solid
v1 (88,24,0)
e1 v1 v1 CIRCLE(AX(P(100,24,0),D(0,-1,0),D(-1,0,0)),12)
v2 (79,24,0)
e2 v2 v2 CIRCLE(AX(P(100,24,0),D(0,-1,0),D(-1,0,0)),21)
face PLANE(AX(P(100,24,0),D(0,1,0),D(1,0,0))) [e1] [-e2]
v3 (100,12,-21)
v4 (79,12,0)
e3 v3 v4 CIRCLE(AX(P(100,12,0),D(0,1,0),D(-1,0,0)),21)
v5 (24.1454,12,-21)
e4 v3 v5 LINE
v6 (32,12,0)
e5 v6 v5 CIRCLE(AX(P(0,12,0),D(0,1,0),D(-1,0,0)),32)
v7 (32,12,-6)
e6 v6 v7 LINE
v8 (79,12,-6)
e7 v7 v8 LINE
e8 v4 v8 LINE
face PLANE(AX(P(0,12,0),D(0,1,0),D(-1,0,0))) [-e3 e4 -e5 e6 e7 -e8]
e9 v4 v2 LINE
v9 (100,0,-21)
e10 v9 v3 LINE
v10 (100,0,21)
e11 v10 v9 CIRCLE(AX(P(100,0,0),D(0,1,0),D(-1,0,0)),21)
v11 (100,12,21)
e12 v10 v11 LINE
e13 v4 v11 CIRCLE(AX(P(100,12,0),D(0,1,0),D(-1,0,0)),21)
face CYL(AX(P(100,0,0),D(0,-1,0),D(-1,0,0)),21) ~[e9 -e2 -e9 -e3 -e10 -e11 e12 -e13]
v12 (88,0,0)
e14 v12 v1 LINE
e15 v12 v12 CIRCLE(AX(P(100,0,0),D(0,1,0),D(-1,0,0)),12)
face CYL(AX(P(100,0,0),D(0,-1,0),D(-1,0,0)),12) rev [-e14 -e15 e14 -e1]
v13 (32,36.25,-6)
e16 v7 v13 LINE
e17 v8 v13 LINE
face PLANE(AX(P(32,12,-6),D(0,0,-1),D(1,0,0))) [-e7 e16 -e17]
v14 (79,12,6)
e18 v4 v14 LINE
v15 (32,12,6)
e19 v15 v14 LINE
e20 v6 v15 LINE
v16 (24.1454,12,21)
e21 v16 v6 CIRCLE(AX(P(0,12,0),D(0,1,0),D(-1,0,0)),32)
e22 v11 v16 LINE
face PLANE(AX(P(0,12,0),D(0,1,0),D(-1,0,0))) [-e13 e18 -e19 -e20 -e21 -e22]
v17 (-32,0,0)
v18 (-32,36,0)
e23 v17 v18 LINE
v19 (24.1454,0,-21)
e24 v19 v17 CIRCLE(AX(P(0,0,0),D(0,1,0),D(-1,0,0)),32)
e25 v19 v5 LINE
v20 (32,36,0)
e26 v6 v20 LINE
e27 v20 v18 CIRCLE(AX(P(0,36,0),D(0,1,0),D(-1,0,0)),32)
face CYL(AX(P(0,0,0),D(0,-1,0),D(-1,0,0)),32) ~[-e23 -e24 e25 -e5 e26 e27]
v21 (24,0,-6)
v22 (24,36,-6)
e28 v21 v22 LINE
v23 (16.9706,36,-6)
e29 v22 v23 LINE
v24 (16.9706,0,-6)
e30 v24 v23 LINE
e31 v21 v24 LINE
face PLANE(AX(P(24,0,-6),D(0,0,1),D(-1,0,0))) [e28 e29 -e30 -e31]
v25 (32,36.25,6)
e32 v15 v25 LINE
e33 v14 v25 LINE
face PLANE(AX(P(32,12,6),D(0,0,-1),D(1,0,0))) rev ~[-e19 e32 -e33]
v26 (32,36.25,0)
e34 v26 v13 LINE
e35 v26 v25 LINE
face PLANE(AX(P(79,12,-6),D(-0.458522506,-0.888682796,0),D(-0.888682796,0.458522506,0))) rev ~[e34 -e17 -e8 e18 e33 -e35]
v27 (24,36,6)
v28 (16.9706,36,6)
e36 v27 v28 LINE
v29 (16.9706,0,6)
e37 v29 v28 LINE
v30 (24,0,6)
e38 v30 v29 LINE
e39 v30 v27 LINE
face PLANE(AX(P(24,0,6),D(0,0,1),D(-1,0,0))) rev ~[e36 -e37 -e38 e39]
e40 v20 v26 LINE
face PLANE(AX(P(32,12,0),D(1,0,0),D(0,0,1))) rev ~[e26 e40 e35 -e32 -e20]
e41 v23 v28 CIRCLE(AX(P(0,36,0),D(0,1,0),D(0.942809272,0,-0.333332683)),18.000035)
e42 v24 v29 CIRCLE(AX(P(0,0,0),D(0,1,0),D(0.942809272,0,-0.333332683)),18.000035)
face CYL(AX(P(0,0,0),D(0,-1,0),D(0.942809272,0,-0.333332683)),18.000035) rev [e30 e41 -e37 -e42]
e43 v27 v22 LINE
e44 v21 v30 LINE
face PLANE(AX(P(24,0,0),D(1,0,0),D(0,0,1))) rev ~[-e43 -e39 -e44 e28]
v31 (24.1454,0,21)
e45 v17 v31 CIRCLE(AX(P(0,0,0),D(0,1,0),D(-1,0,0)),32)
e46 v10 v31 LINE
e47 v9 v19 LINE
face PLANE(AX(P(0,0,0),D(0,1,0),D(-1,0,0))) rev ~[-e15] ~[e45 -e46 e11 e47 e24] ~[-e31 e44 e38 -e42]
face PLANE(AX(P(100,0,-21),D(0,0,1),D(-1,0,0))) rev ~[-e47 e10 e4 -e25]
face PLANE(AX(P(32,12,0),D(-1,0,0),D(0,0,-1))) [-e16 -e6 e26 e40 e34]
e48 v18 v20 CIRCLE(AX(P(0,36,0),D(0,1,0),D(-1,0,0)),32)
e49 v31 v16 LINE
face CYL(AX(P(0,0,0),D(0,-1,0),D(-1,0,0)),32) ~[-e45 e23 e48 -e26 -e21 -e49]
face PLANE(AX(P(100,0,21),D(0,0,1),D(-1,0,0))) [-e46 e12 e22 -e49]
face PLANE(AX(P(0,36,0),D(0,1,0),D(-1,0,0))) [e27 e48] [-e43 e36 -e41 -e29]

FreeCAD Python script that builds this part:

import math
import FreeCAD as App
import Part
import Sketcher

V = App.Vector

doc = App.newDocument("Part")
body = doc.addObject("PartDesign::Body", "Body")
body.AllowCompound = True

# Sketch on XZ plane
sketch1 = doc.addObject("Sketcher::SketchObject", "Sketch")
body.addObject(sketch1)
sketch1.AttachmentSupport = (doc.XZ_Plane, [""])
sketch1.MapMode = "FlatFace"
sketch1.addGeometry(Part.Circle(V(0, 0, 0), V(0, 0, 1), 32), False)
sketch1.addGeometry(Part.ArcOfCircle(Part.Circle(V(0, 0, 0), V(0, 0, 1), 18), math.radians(19), math.radians(341)), False)
sketch1.addGeometry(Part.LineSegment(V(17, -6, 0), V(24, -6, 0)), False)
sketch1.addGeometry(Part.LineSegment(V(24, -6, 0), V(24, 6, 0)), False)
sketch1.addGeometry(Part.LineSegment(V(24, 6, 0), V(17, 6, 0)), False)
sketch1.addGeometry(Part.Circle(V(100, 0, 0), V(0, 0, 1), 21), False)
sketch1.addGeometry(Part.Circle(V(100, 0, 0), V(0, 0, 1), 12), False)
sketch1.addConstraint(Sketcher.Constraint("Coincident", 1, 2, 2, 1))
sketch1.addConstraint(Sketcher.Constraint("Coincident", 2, 2, 3, 1))
sketch1.addConstraint(Sketcher.Constraint("Coincident", 3, 2, 4, 1))
sketch1.addConstraint(Sketcher.Constraint("Coincident", 4, 2, 1, 1))
sketch1.addConstraint(Sketcher.Constraint("Horizontal", 2))
sketch1.addConstraint(Sketcher.Constraint("Vertical", 3))
sketch1.addConstraint(Sketcher.Constraint("Horizontal", 4))
sketch1.addConstraint(Sketcher.Constraint("Coincident", 0, 3, -1, 1))
sketch1.addConstraint(Sketcher.Constraint("Coincident", 1, 3, -1, 1))
sketch1.addConstraint(Sketcher.Constraint("Coincident", 6, 3, 5, 3))
sketch1.addConstraint(Sketcher.Constraint("PointOnObject", 5, 3, -1))
sketch1.addConstraint(Sketcher.Constraint("Vertical", 1, 2, 4, 2))
sketch1.addConstraint(Sketcher.Constraint("Diameter", 0, 64.0))
sketch1.addConstraint(Sketcher.Constraint("Diameter", 5, 42.0))
sketch1.addConstraint(Sketcher.Constraint("Diameter", 6, 24.0))
sketch1.addConstraint(Sketcher.Constraint("Radius", 1, 18.0))
sketch1.addConstraint(Sketcher.Constraint("DistanceY", 1, 2, -1, 1, 6.0))
sketch1.addConstraint(Sketcher.Constraint("DistanceX", -1, 1, 2, 2, 24.0))
sketch1.addConstraint(Sketcher.Constraint("DistanceX", -1, 1, 5, 3, 100.0))
pad1 = doc.addObject("PartDesign::Pad", "Pad")
body.addObject(pad1)
pad1.Profile = sketch1
pad1.Length = 36
pad1.Reversed = True

# Sketch on XZ plane
sketch2 = doc.addObject("Sketcher::SketchObject", "Sketch001")
body.addObject(sketch2)
sketch2.AttachmentSupport = (doc.XZ_Plane, [""])
sketch2.MapMode = "FlatFace"
sketch2.AttachmentOffset = App.Placement(V(0, 0, -36), App.Rotation())
sketch2.addGeometry(Part.Circle(V(100, 0, 0), V(0, 0, 1), 21), False)
sketch2.addGeometry(Part.Circle(V(100, 0, 0), V(0, 0, 1), 12), False)
sketch2.addConstraint(Sketcher.Constraint("Coincident", 1, 3, 0, 3))
sketch2.addConstraint(Sketcher.Constraint("PointOnObject", 0, 3, -1))
sketch2.addConstraint(Sketcher.Constraint("Diameter", 0, 42.0))
sketch2.addConstraint(Sketcher.Constraint("Diameter", 1, 24.0))
sketch2.addConstraint(Sketcher.Constraint("DistanceX", -1, 1, 0, 3, 100.0))
pocket1 = doc.addObject("PartDesign::Pocket", "Pocket")
body.addObject(pocket1)
pocket1.Profile = sketch2
pocket1.Length = 12
pocket1.Reversed = True

# Sketch on XZ plane
sketch3 = doc.addObject("Sketcher::SketchObject", "Sketch002")
body.addObject(sketch3)
sketch3.AttachmentSupport = (doc.XZ_Plane, [""])
sketch3.MapMode = "FlatFace"
sketch3.addGeometry(Part.ArcOfCircle(Part.Circle(V(100, 0, 0), V(0, 0, 1), 21), math.radians(90), math.radians(270)), False)
sketch3.addGeometry(Part.LineSegment(V(100, -21, 0), V(24, -21, 0)), False)
sketch3.addGeometry(Part.ArcOfCircle(Part.Circle(V(0, 0, 0), V(0, 0, 1), 32), math.radians(-41), math.radians(41)), False)
sketch3.addGeometry(Part.LineSegment(V(24, 21, 0), V(100, 21, 0)), False)
sketch3.addConstraint(Sketcher.Constraint("Tangent", 0, 2, 1, 1))
sketch3.addConstraint(Sketcher.Constraint("Coincident", 1, 2, 2, 1))
sketch3.addConstraint(Sketcher.Constraint("Coincident", 2, 2, 3, 1))
sketch3.addConstraint(Sketcher.Constraint("Tangent", 3, 2, 0, 1))
sketch3.addConstraint(Sketcher.Constraint("Horizontal", 1))
sketch3.addConstraint(Sketcher.Constraint("Horizontal", 3))
sketch3.addConstraint(Sketcher.Constraint("Coincident", 2, 3, -1, 1))
sketch3.addConstraint(Sketcher.Constraint("PointOnObject", 0, 3, -1))
sketch3.addConstraint(Sketcher.Constraint("Radius", 2, 32.0))
sketch3.addConstraint(Sketcher.Constraint("Radius", 0, 21.0))
sketch3.addConstraint(Sketcher.Constraint("DistanceX", -1, 1, 0, 3, 100.0))
pad2 = doc.addObject("PartDesign::Pad", "Pad001")
body.addObject(pad2)
pad2.Profile = sketch3
pad2.Length = 12
pad2.Reversed = True

# Sketch on XZ plane
sketch4 = doc.addObject("Sketcher::SketchObject", "Sketch003")
body.addObject(sketch4)
sketch4.AttachmentSupport = (doc.XZ_Plane, [""])
sketch4.MapMode = "FlatFace"
sketch4.AttachmentOffset = App.Placement(V(0, 0, -12), App.Rotation())
sketch4.addGeometry(Part.LineSegment(V(32, -6, 0), V(32, 6, 0)), False)
sketch4.addGeometry(Part.LineSegment(V(32, 6, 0), V(79, 6, 0)), False)
sketch4.addGeometry(Part.LineSegment(V(79, 6, 0), V(79, -6, 0)), False)
sketch4.addGeometry(Part.LineSegment(V(79, -6, 0), V(32, -6, 0)), False)
sketch4.addConstraint(Sketcher.Constraint("Coincident", 0, 2, 1, 1))
sketch4.addConstraint(Sketcher.Constraint("Coincident", 1, 2, 2, 1))
sketch4.addConstraint(Sketcher.Constraint("Coincident", 2, 2, 3, 1))
sketch4.addConstraint(Sketcher.Constraint("Coincident", 3, 2, 0, 1))
sketch4.addConstraint(Sketcher.Constraint("Vertical", 0))
sketch4.addConstraint(Sketcher.Constraint("Horizontal", 1))
sketch4.addConstraint(Sketcher.Constraint("Vertical", 2))
sketch4.addConstraint(Sketcher.Constraint("Horizontal", 3))
sketch4.addConstraint(Sketcher.Constraint("DistanceY", -1, 1, 0, 2, 6.0))
sketch4.addConstraint(Sketcher.Constraint("DistanceY", 2, 2, -1, 1, 6.0))
sketch4.addConstraint(Sketcher.Constraint("DistanceX", 1, 1, 1, 2, 47.0))
sketch4.addConstraint(Sketcher.Constraint("DistanceX", -1, 1, 0, 2, 32.0))
pad3 = doc.addObject("PartDesign::Pad", "Pad002")
body.addObject(pad3)
pad3.Profile = sketch4
pad3.Length = 24.25
pad3.Reversed = True

# Sketch on XY plane
sketch5 = doc.addObject("Sketcher::SketchObject", "Sketch004")
body.addObject(sketch5)
sketch5.AttachmentSupport = (doc.XY_Plane, [""])
sketch5.MapMode = "FlatFace"
sketch5.AttachmentOffset = App.Placement(V(0, 0, -6), App.Rotation())
sketch5.addGeometry(Part.LineSegment(V(79, 36, 0), V(79, 12, 0)), False)
sketch5.addGeometry(Part.LineSegment(V(79, 12, 0), V(32, 36, 0)), False)
sketch5.addGeometry(Part.LineSegment(V(32, 36, 0), V(79, 36, 0)), False)
sketch5.addConstraint(Sketcher.Constraint("Coincident", 0, 2, 1, 1))
sketch5.addConstraint(Sketcher.Constraint("Coincident", 1, 2, 2, 1))
sketch5.addConstraint(Sketcher.Constraint("Coincident", 2, 2, 0, 1))
sketch5.addConstraint(Sketcher.Constraint("Vertical", 0))
sketch5.addConstraint(Sketcher.Constraint("Horizontal", 2))
sketch5.addConstraint(Sketcher.Constraint("DistanceX", 2, 1, 2, 2, 47.0))
sketch5.addConstraint(Sketcher.Constraint("DistanceX", -1, 1, 0, 2, 79.0))
sketch5.addConstraint(Sketcher.Constraint("DistanceY", -1, 1, 0, 2, 12.0))
sketch5.addConstraint(Sketcher.Constraint("DistanceY", 0, 2, 0, 1, 24.25))
pocket2 = doc.addObject("PartDesign::Pocket", "Pocket001")
body.addObject(pocket2)
pocket2.Profile = sketch5
pocket2.Length = 24.25
pocket2.Reversed = True

doc.recompute()
